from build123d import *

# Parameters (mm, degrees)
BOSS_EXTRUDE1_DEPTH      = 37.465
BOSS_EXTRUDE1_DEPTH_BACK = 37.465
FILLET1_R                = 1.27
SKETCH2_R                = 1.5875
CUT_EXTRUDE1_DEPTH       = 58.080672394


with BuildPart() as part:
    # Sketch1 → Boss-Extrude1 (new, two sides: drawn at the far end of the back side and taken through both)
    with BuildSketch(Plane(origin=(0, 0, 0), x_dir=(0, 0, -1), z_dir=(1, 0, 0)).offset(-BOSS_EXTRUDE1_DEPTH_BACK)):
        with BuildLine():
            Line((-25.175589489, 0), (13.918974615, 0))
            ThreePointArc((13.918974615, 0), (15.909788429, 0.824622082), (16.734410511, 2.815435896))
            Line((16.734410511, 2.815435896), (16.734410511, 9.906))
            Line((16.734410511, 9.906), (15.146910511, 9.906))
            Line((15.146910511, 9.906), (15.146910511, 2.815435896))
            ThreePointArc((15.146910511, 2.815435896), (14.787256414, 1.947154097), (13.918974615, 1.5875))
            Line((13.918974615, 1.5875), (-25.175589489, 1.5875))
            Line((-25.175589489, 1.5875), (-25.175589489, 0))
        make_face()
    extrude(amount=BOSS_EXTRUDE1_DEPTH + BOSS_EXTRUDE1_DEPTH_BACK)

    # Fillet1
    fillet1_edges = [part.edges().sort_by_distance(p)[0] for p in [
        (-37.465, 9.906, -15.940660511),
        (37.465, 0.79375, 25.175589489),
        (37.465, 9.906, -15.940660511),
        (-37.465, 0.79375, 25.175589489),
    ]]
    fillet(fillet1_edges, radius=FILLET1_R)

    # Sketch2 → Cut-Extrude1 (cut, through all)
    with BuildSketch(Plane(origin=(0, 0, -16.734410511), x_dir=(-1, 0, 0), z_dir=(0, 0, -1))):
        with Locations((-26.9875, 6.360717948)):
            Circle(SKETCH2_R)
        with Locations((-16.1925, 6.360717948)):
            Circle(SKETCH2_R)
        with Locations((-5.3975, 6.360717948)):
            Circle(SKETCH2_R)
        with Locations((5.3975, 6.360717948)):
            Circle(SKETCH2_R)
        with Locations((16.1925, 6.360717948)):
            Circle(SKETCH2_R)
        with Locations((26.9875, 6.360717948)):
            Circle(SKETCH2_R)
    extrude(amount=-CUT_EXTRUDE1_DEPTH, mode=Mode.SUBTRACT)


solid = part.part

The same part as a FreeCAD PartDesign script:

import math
import FreeCAD as App
import Part
import Sketcher
from FreeCAD import Vector
Q = App.Units.Quantity


def edges_at(feature, points):
    """Names of the edges that pass closest to the given points."""
    edges = feature.Shape.Edges
    near = lambda p: min(range(len(edges)), key=lambda i: edges[i].distToShape(Part.Vertex(*p))[0])
    return sorted({f"Edge{near(p) + 1}" for p in points})

doc = App.newDocument("Part")
body = doc.addObject("PartDesign::Body", "Body")

# Sketch on YZ plane
sketch1 = body.newObject("Sketcher::SketchObject", "Sketch")
sketch1.AttachmentSupport = (doc.getObject("YZ_Plane"), [""])
sketch1.MapMode = "FlatFace"
sketch1.addGeometry(Part.LineSegment(Vector(0, 25.2, 0), Vector(0, -13.9, 0)), False)
sketch1.addGeometry(Part.ArcOfCircle(Part.Circle(Vector(2.8, -13.9, 0), Vector(0, 0, 1), 2.8), math.radians(180), math.radians(270)), False)
sketch1.addGeometry(Part.LineSegment(Vector(2.8, -16.7, 0), Vector(9.9, -16.7, 0)), False)
sketch1.addGeometry(Part.LineSegment(Vector(9.9, -16.7, 0), Vector(9.9, -15.1, 0)), False)
sketch1.addGeometry(Part.LineSegment(Vector(9.9, -15.1, 0), Vector(2.8, -15.1, 0)), False)
sketch1.addGeometry(Part.ArcOfCircle(Part.Circle(Vector(2.8, -13.9, 0), Vector(0, 0, 1), 1.2), math.radians(180), math.radians(270)), False)
sketch1.addGeometry(Part.LineSegment(Vector(1.6, -13.9, 0), Vector(1.6, 25.2, 0)), False)
sketch1.addGeometry(Part.LineSegment(Vector(1.6, 25.2, 0), Vector(0, 25.2, 0)), False)
sketch1.addConstraint(Sketcher.Constraint("Tangent", 0, 2, 1, 1))
sketch1.addConstraint(Sketcher.Constraint("Tangent", 1, 2, 2, 1))
sketch1.addConstraint(Sketcher.Constraint("Coincident", 2, 2, 3, 1))
sketch1.addConstraint(Sketcher.Constraint("Coincident", 3, 2, 4, 1))
sketch1.addConstraint(Sketcher.Constraint("Tangent", 4, 2, 5, 2))
sketch1.addConstraint(Sketcher.Constraint("Tangent", 5, 1, 6, 1))
sketch1.addConstraint(Sketcher.Constraint("Coincident", 6, 2, 7, 1))
sketch1.addConstraint(Sketcher.Constraint("Coincident", 7, 2, 0, 1))
sketch1.addConstraint(Sketcher.Constraint("Vertical", 0))
sketch1.addConstraint(Sketcher.Constraint("Horizontal", 2))
sketch1.addConstraint(Sketcher.Constraint("Vertical", 3))
sketch1.addConstraint(Sketcher.Constraint("Horizontal", 4))
sketch1.addConstraint(Sketcher.Constraint("Vertical", 6))
sketch1.addConstraint(Sketcher.Constraint("Horizontal", 7))
sketch1.addConstraint(Sketcher.Constraint("Coincident", 5, 3, 1, 3))
sketch1.addConstraint(Sketcher.Constraint("PointOnObject", 0, 2, -2))
sketch1.addConstraint(Sketcher.Constraint("DistanceX", 7, 2, 7, 1, Q("0.0625 in")))
sketch1.addConstraint(Sketcher.Constraint("DistanceX", -1, 1, 2, 2, Q("0.39 in")))
sketch1.addConstraint(Sketcher.Constraint("Radius", 1, Q("2.815436 mm")))
sketch1.addConstraint(Sketcher.Constraint("DistanceY", 4, 2, 6, 2, Q("1.5875 in")))
sketch1.addConstraint(Sketcher.Constraint("DistanceY", 1, 2, -1, 1, Q("16.734411 mm")))
pad1 = body.newObject("PartDesign::Pad", "Pad")
pad1.Profile = sketch1
pad1.Type = "TwoLengths"
pad1.Length = Q("1.475 in")
pad1.Length2 = Q("1.475 in")
doc.recompute()

fillet = body.newObject("PartDesign::Fillet", "Fillet")
fillet.Base = (pad1, edges_at(pad1, [
    (-37.465, 9.906, -15.941),
    (37.465, 0.794, 25.176),
    (37.465, 9.906, -15.941),
    (-37.465, 0.794, 25.176),
]))
fillet.Radius = Q("0.05 in")

# Sketch on XY plane
sketch2 = body.newObject("Sketcher::SketchObject", "Sketch001")
sketch2.AttachmentSupport = (doc.getObject("XY_Plane"), [""])
sketch2.MapMode = "FlatFace"
sketch2.AttachmentOffset = App.Placement(Vector(0, 0, -16.734411), App.Rotation())
sketch2.addGeometry(Part.Circle(Vector(27, 6.4, 0), Vector(0, 0, 1), 1.6), False)
sketch2.addGeometry(Part.Circle(Vector(16.2, 6.4, 0), Vector(0, 0, 1), 1.6), False)
sketch2.addGeometry(Part.Circle(Vector(5.4, 6.4, 0), Vector(0, 0, 1), 1.6), False)
sketch2.addGeometry(Part.Circle(Vector(-5.4, 6.4, 0), Vector(0, 0, 1), 1.6), False)
sketch2.addGeometry(Part.Circle(Vector(-16.2, 6.4, 0), Vector(0, 0, 1), 1.6), False)
sketch2.addGeometry(Part.Circle(Vector(-27, 6.4, 0), Vector(0, 0, 1), 1.6), False)
sketch2.addConstraint(Sketcher.Constraint("Equal", 0, 1))
sketch2.addConstraint(Sketcher.Constraint("Equal", 1, 2))
sketch2.addConstraint(Sketcher.Constraint("Equal", 2, 3))
sketch2.addConstraint(Sketcher.Constraint("Equal", 3, 4))
sketch2.addConstraint(Sketcher.Constraint("Equal", 4, 5))
sketch2.addConstraint(Sketcher.Constraint("Symmetric", 2, 3, 3, 3, -2))
sketch2.addConstraint(Sketcher.Constraint("Symmetric", 1, 3, 4, 3, -2))
sketch2.addConstraint(Sketcher.Constraint("Symmetric", 0, 3, 5, 3, -2))
sketch2.addConstraint(Sketcher.Constraint("Horizontal", 0, 3, 1, 3))
sketch2.addConstraint(Sketcher.Constraint("Horizontal", 1, 3, 2, 3))
sketch2.addConstraint(Sketcher.Constraint("Diameter", 0, Q("0.125 in")))
sketch2.addConstraint(Sketcher.Constraint("DistanceX", 4, 3, 0, 3, Q("1.7 in")))
sketch2.addConstraint(Sketcher.Constraint("DistanceX", 2, 3, 0, 3, Q("0.85 in")))
sketch2.addConstraint(Sketcher.Constraint("DistanceX", -1, 1, 0, 3, Q("1.0625 in")))
sketch2.addConstraint(Sketcher.Constraint("DistanceY", -1, 1, 0, 3, Q("6.360718 mm")))
pocket1 = body.newObject("PartDesign::Pocket", "Pocket")
pocket1.Profile = sketch2
pocket1.Type = "ThroughAll"
pocket1.Reversed = True

doc.recompute()
